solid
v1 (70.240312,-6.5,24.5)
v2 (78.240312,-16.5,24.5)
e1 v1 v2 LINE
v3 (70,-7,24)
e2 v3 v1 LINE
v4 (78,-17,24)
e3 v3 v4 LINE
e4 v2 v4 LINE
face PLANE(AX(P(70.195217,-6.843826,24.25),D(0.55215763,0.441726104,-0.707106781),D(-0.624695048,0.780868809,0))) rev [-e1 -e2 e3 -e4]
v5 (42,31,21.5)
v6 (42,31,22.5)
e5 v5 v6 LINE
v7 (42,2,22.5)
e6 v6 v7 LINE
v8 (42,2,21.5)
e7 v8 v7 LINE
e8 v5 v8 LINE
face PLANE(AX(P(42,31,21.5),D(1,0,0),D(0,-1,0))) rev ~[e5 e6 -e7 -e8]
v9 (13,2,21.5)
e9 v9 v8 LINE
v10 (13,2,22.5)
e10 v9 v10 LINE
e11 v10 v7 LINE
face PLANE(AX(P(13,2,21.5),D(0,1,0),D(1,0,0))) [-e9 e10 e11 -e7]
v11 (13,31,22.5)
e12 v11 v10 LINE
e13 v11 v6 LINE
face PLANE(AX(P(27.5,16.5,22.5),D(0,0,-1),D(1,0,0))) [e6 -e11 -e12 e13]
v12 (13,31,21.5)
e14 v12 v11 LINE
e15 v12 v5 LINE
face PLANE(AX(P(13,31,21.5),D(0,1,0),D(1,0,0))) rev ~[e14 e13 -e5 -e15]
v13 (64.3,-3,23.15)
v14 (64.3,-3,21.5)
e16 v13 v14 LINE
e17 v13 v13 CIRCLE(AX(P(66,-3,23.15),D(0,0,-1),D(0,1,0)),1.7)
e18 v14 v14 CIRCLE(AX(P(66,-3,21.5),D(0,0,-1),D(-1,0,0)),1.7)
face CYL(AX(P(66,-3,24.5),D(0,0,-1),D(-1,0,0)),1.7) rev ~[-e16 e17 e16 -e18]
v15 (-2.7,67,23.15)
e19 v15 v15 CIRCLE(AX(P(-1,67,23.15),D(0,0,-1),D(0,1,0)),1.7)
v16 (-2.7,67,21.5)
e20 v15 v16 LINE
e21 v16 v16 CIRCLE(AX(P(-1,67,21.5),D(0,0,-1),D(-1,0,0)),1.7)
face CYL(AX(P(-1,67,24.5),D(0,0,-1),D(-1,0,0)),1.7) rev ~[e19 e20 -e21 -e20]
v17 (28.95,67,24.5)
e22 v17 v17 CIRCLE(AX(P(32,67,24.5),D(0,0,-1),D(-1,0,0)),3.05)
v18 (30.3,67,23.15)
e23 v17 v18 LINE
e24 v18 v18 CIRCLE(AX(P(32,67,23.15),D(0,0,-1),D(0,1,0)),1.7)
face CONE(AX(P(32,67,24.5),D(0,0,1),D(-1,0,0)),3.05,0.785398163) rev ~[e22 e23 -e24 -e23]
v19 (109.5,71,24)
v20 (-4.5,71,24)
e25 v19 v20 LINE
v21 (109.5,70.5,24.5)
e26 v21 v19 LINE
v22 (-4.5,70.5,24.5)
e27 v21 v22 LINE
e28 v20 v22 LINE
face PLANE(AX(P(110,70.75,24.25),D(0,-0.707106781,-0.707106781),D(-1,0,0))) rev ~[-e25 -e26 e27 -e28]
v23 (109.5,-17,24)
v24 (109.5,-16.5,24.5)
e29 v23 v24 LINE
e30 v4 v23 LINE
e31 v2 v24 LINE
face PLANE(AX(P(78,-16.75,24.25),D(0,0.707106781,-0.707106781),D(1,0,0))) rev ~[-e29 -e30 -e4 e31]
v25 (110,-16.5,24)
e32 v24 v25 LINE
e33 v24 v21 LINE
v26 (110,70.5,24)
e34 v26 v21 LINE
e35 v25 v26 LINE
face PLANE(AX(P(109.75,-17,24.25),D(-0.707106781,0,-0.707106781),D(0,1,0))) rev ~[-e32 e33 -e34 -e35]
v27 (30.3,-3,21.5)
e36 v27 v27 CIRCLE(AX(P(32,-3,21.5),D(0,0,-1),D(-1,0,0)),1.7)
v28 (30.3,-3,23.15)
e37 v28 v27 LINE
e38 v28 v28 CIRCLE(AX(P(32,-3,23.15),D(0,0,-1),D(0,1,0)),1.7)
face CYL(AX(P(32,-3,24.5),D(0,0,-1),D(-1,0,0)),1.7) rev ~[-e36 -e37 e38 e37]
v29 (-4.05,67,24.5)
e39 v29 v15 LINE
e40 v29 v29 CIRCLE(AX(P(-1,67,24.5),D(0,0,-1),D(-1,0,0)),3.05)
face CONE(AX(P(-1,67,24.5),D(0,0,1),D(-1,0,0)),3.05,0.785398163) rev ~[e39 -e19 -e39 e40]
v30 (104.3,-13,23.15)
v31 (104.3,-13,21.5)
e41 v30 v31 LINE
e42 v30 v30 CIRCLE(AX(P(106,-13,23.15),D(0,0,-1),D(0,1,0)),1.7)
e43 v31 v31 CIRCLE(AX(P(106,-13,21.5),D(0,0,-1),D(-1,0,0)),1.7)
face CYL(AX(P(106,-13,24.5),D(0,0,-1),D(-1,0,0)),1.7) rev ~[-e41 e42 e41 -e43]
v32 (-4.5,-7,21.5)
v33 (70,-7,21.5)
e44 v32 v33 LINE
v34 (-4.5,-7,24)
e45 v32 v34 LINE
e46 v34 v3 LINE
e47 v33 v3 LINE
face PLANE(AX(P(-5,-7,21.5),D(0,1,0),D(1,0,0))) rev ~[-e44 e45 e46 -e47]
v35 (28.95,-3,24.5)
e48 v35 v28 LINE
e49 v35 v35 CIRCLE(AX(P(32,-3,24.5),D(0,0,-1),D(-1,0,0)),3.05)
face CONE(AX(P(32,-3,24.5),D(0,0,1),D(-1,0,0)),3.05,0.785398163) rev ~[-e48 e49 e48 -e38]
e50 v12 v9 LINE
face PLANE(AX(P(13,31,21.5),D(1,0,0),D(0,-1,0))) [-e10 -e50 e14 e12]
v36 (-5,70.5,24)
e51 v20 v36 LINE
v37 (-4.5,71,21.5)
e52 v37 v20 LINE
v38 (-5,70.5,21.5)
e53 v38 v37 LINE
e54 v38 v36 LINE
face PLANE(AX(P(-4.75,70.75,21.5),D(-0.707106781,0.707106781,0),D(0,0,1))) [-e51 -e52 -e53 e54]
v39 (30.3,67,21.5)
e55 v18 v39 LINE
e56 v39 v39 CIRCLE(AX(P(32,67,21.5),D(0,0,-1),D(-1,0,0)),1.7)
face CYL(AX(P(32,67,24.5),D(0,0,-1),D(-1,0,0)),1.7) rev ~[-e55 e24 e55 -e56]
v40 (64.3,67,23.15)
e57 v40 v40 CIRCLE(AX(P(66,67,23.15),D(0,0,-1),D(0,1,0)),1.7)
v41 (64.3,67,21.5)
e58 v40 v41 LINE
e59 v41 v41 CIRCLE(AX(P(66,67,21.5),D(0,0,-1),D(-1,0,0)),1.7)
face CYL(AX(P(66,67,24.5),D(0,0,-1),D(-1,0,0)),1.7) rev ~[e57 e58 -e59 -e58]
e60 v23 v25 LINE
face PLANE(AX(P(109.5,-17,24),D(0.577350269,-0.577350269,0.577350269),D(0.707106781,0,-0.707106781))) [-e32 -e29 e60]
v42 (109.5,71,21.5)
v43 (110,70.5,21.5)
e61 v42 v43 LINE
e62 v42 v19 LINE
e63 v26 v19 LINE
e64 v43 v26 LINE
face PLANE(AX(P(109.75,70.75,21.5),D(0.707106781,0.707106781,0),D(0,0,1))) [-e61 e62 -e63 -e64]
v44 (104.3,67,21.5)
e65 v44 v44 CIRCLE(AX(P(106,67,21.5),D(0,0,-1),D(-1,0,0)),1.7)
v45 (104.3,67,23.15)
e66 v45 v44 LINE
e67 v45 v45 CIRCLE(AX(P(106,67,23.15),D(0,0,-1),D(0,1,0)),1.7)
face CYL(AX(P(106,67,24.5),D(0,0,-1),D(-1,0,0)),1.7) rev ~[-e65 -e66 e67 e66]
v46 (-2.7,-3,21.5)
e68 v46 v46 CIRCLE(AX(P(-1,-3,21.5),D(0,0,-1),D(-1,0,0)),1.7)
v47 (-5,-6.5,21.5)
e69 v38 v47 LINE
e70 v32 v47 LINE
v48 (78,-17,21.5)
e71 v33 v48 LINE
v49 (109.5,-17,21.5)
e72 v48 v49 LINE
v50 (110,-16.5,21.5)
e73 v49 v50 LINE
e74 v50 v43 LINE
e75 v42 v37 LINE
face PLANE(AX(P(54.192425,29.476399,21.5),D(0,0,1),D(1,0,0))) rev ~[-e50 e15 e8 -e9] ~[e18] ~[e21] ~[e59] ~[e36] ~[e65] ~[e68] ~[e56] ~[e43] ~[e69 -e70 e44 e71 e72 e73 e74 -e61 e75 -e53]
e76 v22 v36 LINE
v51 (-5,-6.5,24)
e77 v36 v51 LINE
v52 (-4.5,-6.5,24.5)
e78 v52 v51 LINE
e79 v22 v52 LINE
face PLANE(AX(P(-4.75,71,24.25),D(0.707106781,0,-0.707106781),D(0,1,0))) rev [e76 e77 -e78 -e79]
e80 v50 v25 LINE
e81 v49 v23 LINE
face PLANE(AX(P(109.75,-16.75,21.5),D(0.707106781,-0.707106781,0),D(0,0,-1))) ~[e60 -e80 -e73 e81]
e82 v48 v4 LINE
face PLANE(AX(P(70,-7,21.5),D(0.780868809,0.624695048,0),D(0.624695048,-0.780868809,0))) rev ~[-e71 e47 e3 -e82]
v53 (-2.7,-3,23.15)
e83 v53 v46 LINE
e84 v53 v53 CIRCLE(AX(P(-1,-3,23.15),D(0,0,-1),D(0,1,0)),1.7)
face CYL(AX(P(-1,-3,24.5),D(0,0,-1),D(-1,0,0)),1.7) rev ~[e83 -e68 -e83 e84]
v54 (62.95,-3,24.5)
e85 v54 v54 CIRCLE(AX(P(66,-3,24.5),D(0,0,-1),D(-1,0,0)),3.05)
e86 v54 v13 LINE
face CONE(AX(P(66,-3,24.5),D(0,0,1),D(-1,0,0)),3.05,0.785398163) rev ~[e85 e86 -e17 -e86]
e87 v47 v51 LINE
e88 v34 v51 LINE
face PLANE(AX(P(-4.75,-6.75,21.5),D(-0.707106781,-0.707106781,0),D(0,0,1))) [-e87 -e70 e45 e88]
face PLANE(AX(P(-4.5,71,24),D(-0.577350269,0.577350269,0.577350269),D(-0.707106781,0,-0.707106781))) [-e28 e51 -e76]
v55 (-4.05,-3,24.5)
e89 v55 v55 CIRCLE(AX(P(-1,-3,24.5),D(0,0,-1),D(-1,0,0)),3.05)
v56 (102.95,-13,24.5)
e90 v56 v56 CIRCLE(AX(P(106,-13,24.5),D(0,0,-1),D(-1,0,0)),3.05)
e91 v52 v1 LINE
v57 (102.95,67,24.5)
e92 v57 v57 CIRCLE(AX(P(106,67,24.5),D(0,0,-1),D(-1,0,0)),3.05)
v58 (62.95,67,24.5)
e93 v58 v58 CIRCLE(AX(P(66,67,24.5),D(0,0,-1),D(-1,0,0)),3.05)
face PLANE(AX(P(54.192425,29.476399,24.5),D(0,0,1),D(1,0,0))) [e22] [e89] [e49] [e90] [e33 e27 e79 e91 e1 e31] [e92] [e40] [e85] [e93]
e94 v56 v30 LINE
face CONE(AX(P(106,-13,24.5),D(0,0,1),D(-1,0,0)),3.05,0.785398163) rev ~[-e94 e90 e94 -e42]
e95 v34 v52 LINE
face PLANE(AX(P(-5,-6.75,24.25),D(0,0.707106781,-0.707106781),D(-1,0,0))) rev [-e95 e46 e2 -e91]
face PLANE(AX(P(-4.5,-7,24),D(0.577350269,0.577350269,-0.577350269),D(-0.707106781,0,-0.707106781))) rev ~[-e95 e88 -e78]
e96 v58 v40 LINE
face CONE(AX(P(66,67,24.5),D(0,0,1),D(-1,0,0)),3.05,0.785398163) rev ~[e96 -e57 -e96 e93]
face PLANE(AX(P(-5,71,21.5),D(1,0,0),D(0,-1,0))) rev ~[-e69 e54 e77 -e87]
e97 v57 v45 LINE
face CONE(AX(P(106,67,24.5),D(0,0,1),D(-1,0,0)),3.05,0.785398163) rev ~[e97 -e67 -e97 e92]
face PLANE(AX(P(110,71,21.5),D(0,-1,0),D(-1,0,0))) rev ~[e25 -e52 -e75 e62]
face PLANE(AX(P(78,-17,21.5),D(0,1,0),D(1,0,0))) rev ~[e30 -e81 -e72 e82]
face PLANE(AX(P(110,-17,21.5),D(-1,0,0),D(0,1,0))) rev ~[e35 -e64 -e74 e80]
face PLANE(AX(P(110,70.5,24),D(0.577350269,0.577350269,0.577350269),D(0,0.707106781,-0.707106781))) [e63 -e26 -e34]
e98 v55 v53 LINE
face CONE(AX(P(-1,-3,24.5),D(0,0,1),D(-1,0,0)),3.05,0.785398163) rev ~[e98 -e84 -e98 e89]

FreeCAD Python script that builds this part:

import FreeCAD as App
import Part
import Sketcher
Q = App.Units.Quantity


def edges_at(feature, points):
    """Names of the edges that pass closest to the given points."""
    edges = feature.Shape.Edges
    near = lambda p: min(range(len(edges)), key=lambda i: edges[i].distToShape(Part.Vertex(*p))[0])
    return sorted({f"Edge{near(p) + 1}" for p in points})


def add_polygon(sketch, points):
    """Adds a closed chain of lines whose ends are joined by coincident constraints."""
    first, n = sketch.GeometryCount, len(points)
    for a, b in zip(points, points[1:] + points[:1]):
        sketch.addGeometry(Part.LineSegment(App.Vector(*a, 0), App.Vector(*b, 0)), False)
    for i in range(n):
        sketch.addConstraint(Sketcher.Constraint("Coincident", first + i, 2, first + (i + 1) % n, 1))

doc = App.newDocument("Part")
params = doc.addObject("Spreadsheet::Sheet", "Params")
for row, (alias, value) in enumerate([
    ("sketch1_width", "75 mm"),
    ("sketch1_width2", "32 mm"),
    ("sketch1_width3", "115 mm"),
    ("sketch1_height", "88 mm"),
    ("sketch1_height2", "78 mm"),
    ("pad1_length", "3 mm"),
    ("sketch2_diameter", "3.4 mm"),
    ("hole_diameter", "3.4 mm"),
    ("hole_depth", "5 mm"),
    ("hole_csink_diameter", "6.1 mm"),
    ("sketch3_width", "29 mm"),
    ("pocket1_length", "1 mm"),
    ("chamfer_size", "0.5 mm"),
], start=1):
    params.set(f"A{row}", alias)
    params.set(f"B{row}", "=" + value)
    params.setAlias(f"B{row}", alias)

body = doc.addObject("PartDesign::Body", "Body")

sketch1 = doc.addObject("Sketcher::SketchObject", "Sketch")
body.addObject(sketch1)
sketch1.AttachmentSupport = (doc.XY_Plane, [""])
sketch1.MapMode = "FlatFace"
sketch1.AttachmentOffset = App.Placement(App.Vector(0, 0, 24), App.Rotation())
add_polygon(sketch1, [(-5, -7), (70, -7), (78, -17), (110, -17), (110, 71), (-5, 71)])
sketch1.addConstraint([
    Sketcher.Constraint("Horizontal", 0),
    Sketcher.Constraint("Horizontal", 2),
    Sketcher.Constraint("Vertical", 3),
    Sketcher.Constraint("Horizontal", 4),
    Sketcher.Constraint("Vertical", 5),
    Sketcher.Constraint("DistanceX", 0, 1, 0, 2, Q("75 mm")),
    Sketcher.Constraint("DistanceX", 2, 1, 2, 2, Q("32 mm")),
    Sketcher.Constraint("DistanceX", 4, 2, 4, 1, Q("115 mm")),
    Sketcher.Constraint("DistanceY", 3, 1, 3, 2, Q("88 mm")),
    Sketcher.Constraint("DistanceY", 5, 2, 5, 1, Q("78 mm")),
    Sketcher.Constraint("DistanceX", -1, 1, 0, 2, Q("70 mm")),
    Sketcher.Constraint("DistanceY", 0, 2, -1, 1, Q("7 mm")),
])
sketch1.setExpression("Constraints[11]", "Params.sketch1_width")
sketch1.setExpression("Constraints[12]", "Params.sketch1_width2")
sketch1.setExpression("Constraints[13]", "Params.sketch1_width3")
sketch1.setExpression("Constraints[14]", "Params.sketch1_height")
sketch1.setExpression("Constraints[15]", "Params.sketch1_height2")
pad1 = doc.addObject("PartDesign::Pad", "Pad")
body.addObject(pad1)
pad1.Profile = sketch1
pad1.setExpression("Length", "Params.pad1_length")

sketch2 = doc.addObject("Sketcher::SketchObject", "Sketch001")
body.addObject(sketch2)
sketch2.AttachmentSupport = (doc.XY_Plane, [""])
sketch2.MapMode = "FlatFace"
sketch2.AttachmentOffset = App.Placement(App.Vector(0, 0, 27), App.Rotation())
sketch2.addGeometry([
    Part.Circle(App.Vector(-1, 67, 0), App.Vector(0, 0, 1), 1.7),
    Part.Circle(App.Vector(106, 67, 0), App.Vector(0, 0, 1), 1.7),
    Part.Circle(App.Vector(106, -13, 0), App.Vector(0, 0, 1), 1.7),
    Part.Circle(App.Vector(-1, -3, 0), App.Vector(0, 0, 1), 1.7),
    Part.Circle(App.Vector(32, 67, 0), App.Vector(0, 0, 1), 1.7),
    Part.Circle(App.Vector(66, -3, 0), App.Vector(0, 0, 1), 1.7),
    Part.Circle(App.Vector(32, -3, 0), App.Vector(0, 0, 1), 1.7),
    Part.Circle(App.Vector(66, 67, 0), App.Vector(0, 0, 1), 1.7),
], False)
sketch2.addConstraint([
    Sketcher.Constraint("Equal", 0, 1),
    Sketcher.Constraint("Equal", 1, 2),
    Sketcher.Constraint("Equal", 2, 3),
    Sketcher.Constraint("Equal", 3, 4),
    Sketcher.Constraint("Equal", 4, 5),
    Sketcher.Constraint("Equal", 5, 6),
    Sketcher.Constraint("Equal", 6, 7),
    Sketcher.Constraint("Horizontal", 0, 3, 1, 3),
    Sketcher.Constraint("Horizontal", 1, 3, 4, 3),
    Sketcher.Constraint("Horizontal", 3, 3, 5, 3),
    Sketcher.Constraint("Horizontal", 5, 3, 6, 3),
    Sketcher.Constraint("Horizontal", 4, 3, 7, 3),
    Sketcher.Constraint("Vertical", 1, 3, 2, 3),
    Sketcher.Constraint("Vertical", 0, 3, 3, 3),
    Sketcher.Constraint("Vertical", 4, 3, 6, 3),
    Sketcher.Constraint("Vertical", 5, 3, 7, 3),
    Sketcher.Constraint("Diameter", 0, Q("3.4 mm")),
    Sketcher.Constraint("DistanceX", 0, 3, -1, 1, Q("1 mm")),
    Sketcher.Constraint("DistanceY", -1, 1, 0, 3, Q("67 mm")),
    Sketcher.Constraint("DistanceX", -1, 1, 1, 3, Q("106 mm")),
    Sketcher.Constraint("DistanceY", 2, 3, -1, 1, Q("13 mm")),
    Sketcher.Constraint("DistanceY", 3, 3, -1, 1, Q("3 mm")),
    Sketcher.Constraint("DistanceX", -1, 1, 4, 3, Q("32 mm")),
    Sketcher.Constraint("DistanceX", -1, 1, 5, 3, Q("66 mm")),
])
sketch2.setExpression("Constraints[16]", "Params.sketch2_diameter")
doc.recompute()
hole = doc.addObject("PartDesign::Hole", "Hole")
body.addObject(hole)
hole.Profile = sketch2
hole.ThreadType = "None"
hole.setExpression("Diameter", "Params.hole_diameter")
hole.DepthType = "Dimension"
hole.setExpression("Depth", "Params.hole_depth")
hole.DrillPoint = "Flat"
hole.HoleCutType = "Countersink"
hole.setExpression("HoleCutDiameter", "Params.hole_csink_diameter")
hole.HoleCutCountersinkAngle = 90

sketch3 = doc.addObject("Sketcher::SketchObject", "Sketch002")
body.addObject(sketch3)
sketch3.AttachmentSupport = (doc.XY_Plane, [""])
sketch3.MapMode = "FlatFace"
sketch3.AttachmentOffset = App.Placement(App.Vector(0, 0, 24), App.Rotation())
add_polygon(sketch3, [(13, 2), (13, 31), (42, 31), (42, 2)])
sketch3.addConstraint([
    Sketcher.Constraint("Vertical", 0),
    Sketcher.Constraint("Horizontal", 1),
    Sketcher.Constraint("Vertical", 2),
    Sketcher.Constraint("Horizontal", 3),
    Sketcher.Constraint("Equal", 3, 0),
    Sketcher.Constraint("DistanceX", 1, 1, 1, 2, Q("29 mm")),
    Sketcher.Constraint("DistanceX", -1, 1, 0, 2, Q("13 mm")),
    Sketcher.Constraint("DistanceY", -1, 1, 0, 2, Q("31 mm")),
])
sketch3.setExpression("Constraints[9]", "Params.sketch3_width")
pocket1 = doc.addObject("PartDesign::Pocket", "Pocket")
body.addObject(pocket1)
pocket1.Profile = sketch3
pocket1.setExpression("Length", "Params.pocket1_length")
pocket1.Reversed = True
doc.recompute()

chamfer = doc.addObject("PartDesign::Chamfer", "Chamfer")
body.addObject(chamfer)
chamfer.Base = (pocket1, edges_at(pocket1, [
    (-5, 32, 27),
    (52.5, 71, 27),
    (110, 27, 27),
    (94, -17, 27),
    (74, -12, 27),
    (32.5, -7, 27),
    (110, 71, 25.5),
    (110, -17, 25.5),
    (-5, 71, 25.5),
    (-5, -7, 25.5),
]))
chamfer.setExpression("Size", "Params.chamfer_size")
body2 = doc.addObject("PartDesign::Body", "Body001")
doc.recompute()

body.Placement = App.Placement(App.Vector(0, 0, -2.5), App.Rotation(App.Vector(0, 0, 1), 0))
boolean = doc.addObject("PartDesign::Boolean", "Boolean")
body2.addObject(boolean)
boolean.Type = "Fuse"
boolean.addObjects([body])

doc.recompute()
